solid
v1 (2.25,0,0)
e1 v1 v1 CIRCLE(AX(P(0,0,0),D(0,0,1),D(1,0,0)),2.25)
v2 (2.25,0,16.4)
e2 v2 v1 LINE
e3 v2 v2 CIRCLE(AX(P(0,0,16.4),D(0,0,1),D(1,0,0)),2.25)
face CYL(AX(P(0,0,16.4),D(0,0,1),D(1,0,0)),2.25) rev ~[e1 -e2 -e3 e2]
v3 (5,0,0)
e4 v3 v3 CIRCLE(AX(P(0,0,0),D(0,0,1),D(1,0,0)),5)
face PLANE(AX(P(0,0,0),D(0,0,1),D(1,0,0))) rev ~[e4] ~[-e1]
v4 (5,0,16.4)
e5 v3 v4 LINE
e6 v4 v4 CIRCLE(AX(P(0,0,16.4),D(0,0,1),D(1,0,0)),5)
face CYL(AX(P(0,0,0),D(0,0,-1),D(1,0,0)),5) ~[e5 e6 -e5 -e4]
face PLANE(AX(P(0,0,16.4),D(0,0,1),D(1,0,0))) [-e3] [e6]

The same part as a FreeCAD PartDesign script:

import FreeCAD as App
import Part
import Sketcher

V = App.Vector
Q = App.Units.Quantity

doc = App.newDocument("Part")
params = doc.addObject("Spreadsheet::Sheet", "Params")
for row, (alias, value) in enumerate([
    ("sketch1_diameter", "10 mm"),
    ("pad1_length", "16.4 mm"),
    ("sketch2_diameter", "4.5 mm"),
], start=1):
    params.set(f"A{row}", alias)
    params.set(f"B{row}", "=" + value)
    params.setAlias(f"B{row}", alias)

body = doc.addObject("PartDesign::Body", "Body")

# Sketch on XY plane
sketch1 = body.newObject("Sketcher::SketchObject", "Sketch")
sketch1.AttachmentSupport = (doc.getObject("XY_Plane"), [""])
sketch1.MapMode = "FlatFace"
sketch1.addGeometry(Part.Circle(V(0, 0, 0), V(0, 0, 1), 5), False)
sketch1.addConstraint(Sketcher.Constraint("Coincident", 0, 3, -1, 1))
sketch1.addConstraint(Sketcher.Constraint("Diameter", 0, Q("10 mm")))
sketch1.setExpression("Constraints[1]", "Params.sketch1_diameter")
pad1 = body.newObject("PartDesign::Pad", "Pad")
pad1.Profile = sketch1
pad1.setExpression("Length", "Params.pad1_length")

# Sketch on XY plane
sketch2 = body.newObject("Sketcher::SketchObject", "Sketch001")
sketch2.AttachmentSupport = (doc.getObject("XY_Plane"), [""])
sketch2.MapMode = "FlatFace"
sketch2.AttachmentOffset = App.Placement(V(0, 0, 16.4), App.Rotation())
sketch2.addGeometry(Part.Circle(V(0, 0, 0), V(0, 0, 1), 2.2), False)
sketch2.addConstraint(Sketcher.Constraint("Coincident", 0, 3, -1, 1))
sketch2.addConstraint(Sketcher.Constraint("Diameter", 0, Q("4.5 mm")))
sketch2.setExpression("Constraints[1]", "Params.sketch2_diameter")
pocket1 = body.newObject("PartDesign::Pocket", "Pocket")
pocket1.Profile = sketch2
pocket1.Type = "ThroughAll"

doc.recompute()
